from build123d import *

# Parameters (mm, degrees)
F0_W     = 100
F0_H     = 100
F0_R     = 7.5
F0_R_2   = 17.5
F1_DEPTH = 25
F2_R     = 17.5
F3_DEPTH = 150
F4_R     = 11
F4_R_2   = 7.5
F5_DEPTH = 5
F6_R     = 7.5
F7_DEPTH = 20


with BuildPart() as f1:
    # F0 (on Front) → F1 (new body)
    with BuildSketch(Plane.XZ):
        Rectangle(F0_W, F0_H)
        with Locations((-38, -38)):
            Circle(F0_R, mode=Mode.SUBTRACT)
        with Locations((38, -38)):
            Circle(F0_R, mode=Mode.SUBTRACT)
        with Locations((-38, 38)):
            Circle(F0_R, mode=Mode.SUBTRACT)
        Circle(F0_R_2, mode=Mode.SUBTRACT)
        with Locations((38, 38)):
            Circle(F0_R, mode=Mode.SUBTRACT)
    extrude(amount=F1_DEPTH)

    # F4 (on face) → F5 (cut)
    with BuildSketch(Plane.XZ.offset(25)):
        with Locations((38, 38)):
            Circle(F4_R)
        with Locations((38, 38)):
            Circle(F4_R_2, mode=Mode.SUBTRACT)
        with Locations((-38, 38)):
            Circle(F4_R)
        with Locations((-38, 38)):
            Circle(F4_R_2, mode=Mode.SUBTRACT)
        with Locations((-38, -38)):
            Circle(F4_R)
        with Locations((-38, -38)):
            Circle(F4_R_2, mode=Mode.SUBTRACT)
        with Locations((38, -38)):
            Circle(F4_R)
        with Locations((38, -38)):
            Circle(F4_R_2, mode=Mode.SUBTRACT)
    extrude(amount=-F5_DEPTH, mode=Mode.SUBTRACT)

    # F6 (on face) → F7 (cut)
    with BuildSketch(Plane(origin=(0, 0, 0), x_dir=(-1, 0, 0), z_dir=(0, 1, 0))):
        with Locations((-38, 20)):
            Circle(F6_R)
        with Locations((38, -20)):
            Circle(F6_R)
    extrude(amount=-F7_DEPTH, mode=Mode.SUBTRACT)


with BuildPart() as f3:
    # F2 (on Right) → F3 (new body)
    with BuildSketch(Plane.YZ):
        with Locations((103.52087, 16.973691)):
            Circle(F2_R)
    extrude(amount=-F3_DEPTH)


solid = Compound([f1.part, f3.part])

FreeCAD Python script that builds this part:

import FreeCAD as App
import Part
import Sketcher


def add_polygon(sketch, points):
    """Adds a closed chain of lines whose ends are joined by coincident constraints."""
    first, n = sketch.GeometryCount, len(points)
    for a, b in zip(points, points[1:] + points[:1]):
        sketch.addGeometry(Part.LineSegment(App.Vector(*a, 0), App.Vector(*b, 0)), False)
    for i in range(n):
        sketch.addConstraint(Sketcher.Constraint("Coincident", first + i, 2, first + (i + 1) % n, 1))

doc = App.newDocument("Part")
body = doc.addObject("PartDesign::Body", "Body")

# Sketch on XZ plane
sketch1 = body.newObject("Sketcher::SketchObject", "Sketch")
sketch1.AttachmentSupport = (doc.getObject("XZ_Plane"), [""])
sketch1.MapMode = "FlatFace"
add_polygon(sketch1, [(-50, 50), (-50, -50), (50, -50), (50, 50)])  # lines 0-3
sketch1.addGeometry(Part.Circle(App.Vector(-38, -38, 0), App.Vector(0, 0, 1), 8), False)  # 4
sketch1.addGeometry(Part.Circle(App.Vector(38, -38, 0), App.Vector(0, 0, 1), 8), False)  # 5
sketch1.addGeometry(Part.Circle(App.Vector(-38, 38, 0), App.Vector(0, 0, 1), 8), False)  # 6
sketch1.addGeometry(Part.Circle(App.Vector(0, 0, 0), App.Vector(0, 0, 1), 18), False)  # 7
sketch1.addGeometry(Part.Circle(App.Vector(38, 38, 0), App.Vector(0, 0, 1), 8), False)  # 8
sketch1.addConstraint(Sketcher.Constraint("Vertical", 0))
sketch1.addConstraint(Sketcher.Constraint("Horizontal", 1))
sketch1.addConstraint(Sketcher.Constraint("Vertical", 2))
sketch1.addConstraint(Sketcher.Constraint("Horizontal", 3))
sketch1.addConstraint(Sketcher.Constraint("Coincident", 7, 3, -1, 1))
sketch1.addConstraint(Sketcher.Constraint("Equal", 4, 5))
sketch1.addConstraint(Sketcher.Constraint("Equal", 5, 6))
sketch1.addConstraint(Sketcher.Constraint("Equal", 6, 8))
sketch1.addConstraint(Sketcher.Constraint("Symmetric", 5, 3, 6, 3, -1, 1))
sketch1.addConstraint(Sketcher.Constraint("Symmetric", 4, 3, 8, 3, -1, 1))
sketch1.addConstraint(Sketcher.Constraint("Symmetric", 0, 2, 2, 2, -1, 1))
sketch1.addConstraint(Sketcher.Constraint("Symmetric", 4, 3, 5, 3, -2))
sketch1.addConstraint(Sketcher.Constraint("Equal", 3, 0))
sketch1.addConstraint(Sketcher.Constraint("Diameter", 4, 15.0))
sketch1.addConstraint(Sketcher.Constraint("Diameter", 7, 35.0))
sketch1.addConstraint(Sketcher.Constraint("DistanceX", 1, 1, 1, 2, 100.0))
sketch1.addConstraint(Sketcher.Constraint("DistanceX", 4, 3, -1, 1, 38.0))
sketch1.addConstraint(Sketcher.Constraint("DistanceY", 4, 3, -1, 1, 38.0))
pad1 = body.newObject("PartDesign::Pad", "Pad")
pad1.Profile = sketch1
pad1.Length = 25

# Sketch on XZ plane
sketch2 = body.newObject("Sketcher::SketchObject", "Sketch001")
sketch2.AttachmentSupport = (doc.getObject("XZ_Plane"), [""])
sketch2.MapMode = "FlatFace"
sketch2.AttachmentOffset = App.Placement(App.Vector(0, 0, 25), App.Rotation())
sketch2.addGeometry(Part.Circle(App.Vector(38, 38, 0), App.Vector(0, 0, 1), 11), False)
sketch2.addGeometry(Part.Circle(App.Vector(38, 38, 0), App.Vector(0, 0, 1), 8), False)
sketch2.addGeometry(Part.Circle(App.Vector(-38, 38, 0), App.Vector(0, 0, 1), 11), False)
sketch2.addGeometry(Part.Circle(App.Vector(-38, 38, 0), App.Vector(0, 0, 1), 8), False)
sketch2.addGeometry(Part.Circle(App.Vector(-38, -38, 0), App.Vector(0, 0, 1), 11), False)
sketch2.addGeometry(Part.Circle(App.Vector(-38, -38, 0), App.Vector(0, 0, 1), 8), False)
sketch2.addGeometry(Part.Circle(App.Vector(38, -38, 0), App.Vector(0, 0, 1), 11), False)
sketch2.addGeometry(Part.Circle(App.Vector(38, -38, 0), App.Vector(0, 0, 1), 8), False)
sketch2.addConstraint(Sketcher.Constraint("Coincident", 1, 3, 0, 3))
sketch2.addConstraint(Sketcher.Constraint("Coincident", 3, 3, 2, 3))
sketch2.addConstraint(Sketcher.Constraint("Coincident", 5, 3, 4, 3))
sketch2.addConstraint(Sketcher.Constraint("Coincident", 7, 3, 6, 3))
sketch2.addConstraint(Sketcher.Constraint("Equal", 0, 2))
sketch2.addConstraint(Sketcher.Constraint("Equal", 1, 3))
sketch2.addConstraint(Sketcher.Constraint("Equal", 2, 4))
sketch2.addConstraint(Sketcher.Constraint("Equal", 3, 5))
sketch2.addConstraint(Sketcher.Constraint("Equal", 4, 6))
sketch2.addConstraint(Sketcher.Constraint("Equal", 5, 7))
sketch2.addConstraint(Sketcher.Constraint("Symmetric", 0, 3, 4, 3, -1, 1))
sketch2.addConstraint(Sketcher.Constraint("Symmetric", 2, 3, 6, 3, -1, 1))
sketch2.addConstraint(Sketcher.Constraint("Symmetric", 0, 3, 2, 3, -2))
sketch2.addConstraint(Sketcher.Constraint("Diameter", 0, 22.0))
sketch2.addConstraint(Sketcher.Constraint("Diameter", 1, 15.0))
sketch2.addConstraint(Sketcher.Constraint("DistanceX", -1, 1, 0, 3, 38.0))
sketch2.addConstraint(Sketcher.Constraint("DistanceY", -1, 1, 0, 3, 38.0))
pocket1 = body.newObject("PartDesign::Pocket", "Pocket")
pocket1.Profile = sketch2
pocket1.Length = 5

# Sketch on XZ plane
sketch3 = body.newObject("Sketcher::SketchObject", "Sketch002")
sketch3.AttachmentSupport = (doc.getObject("XZ_Plane"), [""])
sketch3.MapMode = "FlatFace"
sketch3.addGeometry(Part.Circle(App.Vector(38, 20, 0), App.Vector(0, 0, 1), 8), False)
sketch3.addGeometry(Part.Circle(App.Vector(-38, -20, 0), App.Vector(0, 0, 1), 8), False)
sketch3.addConstraint(Sketcher.Constraint("Equal", 0, 1))
sketch3.addConstraint(Sketcher.Constraint("Symmetric", 0, 3, 1, 3, -1, 1))
sketch3.addConstraint(Sketcher.Constraint("Diameter", 0, 15.0))
sketch3.addConstraint(Sketcher.Constraint("DistanceX", -1, 1, 0, 3, 38.0))
sketch3.addConstraint(Sketcher.Constraint("DistanceY", -1, 1, 0, 3, 20.0))
pocket2 = body.newObject("PartDesign::Pocket", "Pocket001")
pocket2.Profile = sketch3
pocket2.Length = 20
pocket2.Reversed = True
body2 = doc.addObject("PartDesign::Body", "Body001")

# Sketch on YZ plane
sketch4 = body2.newObject("Sketcher::SketchObject", "Sketch003")
sketch4.AttachmentSupport = (doc.getObject("YZ_Plane001"), [""])
sketch4.MapMode = "FlatFace"
sketch4.addGeometry(Part.Circle(App.Vector(104, 17, 0), App.Vector(0, 0, 1), 18), False)
sketch4.addConstraint(Sketcher.Constraint("Diameter", 0, 35.0))
sketch4.addConstraint(Sketcher.Constraint("DistanceX", -1, 1, 0, 3, 103.52087))
sketch4.addConstraint(Sketcher.Constraint("DistanceY", -1, 1, 0, 3, 16.973691))
pad2 = body2.newObject("PartDesign::Pad", "Pad001")
pad2.Profile = sketch4
pad2.Length = 150
pad2.Reversed = True

doc.recompute()
